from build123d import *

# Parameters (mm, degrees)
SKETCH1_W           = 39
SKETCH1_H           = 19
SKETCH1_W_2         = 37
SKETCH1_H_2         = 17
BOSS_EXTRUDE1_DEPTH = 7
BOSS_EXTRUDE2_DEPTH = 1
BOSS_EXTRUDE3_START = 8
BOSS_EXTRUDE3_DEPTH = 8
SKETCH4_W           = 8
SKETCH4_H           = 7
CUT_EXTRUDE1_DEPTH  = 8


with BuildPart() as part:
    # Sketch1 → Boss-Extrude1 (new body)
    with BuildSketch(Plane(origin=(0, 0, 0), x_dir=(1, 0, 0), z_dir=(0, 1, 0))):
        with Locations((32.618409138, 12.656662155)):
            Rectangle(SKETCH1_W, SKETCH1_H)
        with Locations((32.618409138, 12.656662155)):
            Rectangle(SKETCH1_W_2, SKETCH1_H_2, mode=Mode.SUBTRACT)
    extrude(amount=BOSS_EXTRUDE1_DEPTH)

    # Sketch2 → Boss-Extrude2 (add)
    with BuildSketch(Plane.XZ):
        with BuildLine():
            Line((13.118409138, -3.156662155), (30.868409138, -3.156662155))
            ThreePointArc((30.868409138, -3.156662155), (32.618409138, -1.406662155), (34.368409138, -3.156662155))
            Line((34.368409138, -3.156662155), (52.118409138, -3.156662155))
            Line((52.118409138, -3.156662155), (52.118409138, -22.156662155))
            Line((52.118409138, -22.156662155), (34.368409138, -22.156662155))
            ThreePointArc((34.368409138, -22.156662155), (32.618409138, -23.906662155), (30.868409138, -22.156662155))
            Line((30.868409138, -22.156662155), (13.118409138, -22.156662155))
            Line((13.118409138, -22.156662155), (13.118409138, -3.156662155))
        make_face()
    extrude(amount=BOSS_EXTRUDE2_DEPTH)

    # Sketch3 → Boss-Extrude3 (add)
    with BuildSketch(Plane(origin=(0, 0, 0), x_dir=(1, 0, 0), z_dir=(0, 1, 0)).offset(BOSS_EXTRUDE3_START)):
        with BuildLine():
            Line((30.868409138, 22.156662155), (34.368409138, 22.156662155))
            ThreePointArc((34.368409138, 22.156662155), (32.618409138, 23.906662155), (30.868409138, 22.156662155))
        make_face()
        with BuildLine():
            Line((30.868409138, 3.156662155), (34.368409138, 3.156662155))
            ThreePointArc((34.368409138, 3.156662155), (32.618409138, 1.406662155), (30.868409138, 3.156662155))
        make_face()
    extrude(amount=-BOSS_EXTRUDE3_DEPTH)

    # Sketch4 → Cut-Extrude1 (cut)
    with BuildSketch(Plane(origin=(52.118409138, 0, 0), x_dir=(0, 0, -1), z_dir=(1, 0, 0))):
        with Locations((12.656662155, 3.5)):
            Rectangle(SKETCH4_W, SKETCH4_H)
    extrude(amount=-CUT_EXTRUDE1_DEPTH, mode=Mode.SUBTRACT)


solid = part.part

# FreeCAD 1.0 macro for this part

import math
import FreeCAD as App
import Part
import Sketcher

V = App.Vector


def add_polygon(sketch, points):
    """Adds a closed chain of lines whose ends are joined by coincident constraints."""
    first, n = sketch.GeometryCount, len(points)
    for a, b in zip(points, points[1:] + points[:1]):
        sketch.addGeometry(Part.LineSegment(App.Vector(*a, 0), App.Vector(*b, 0)), False)
    for i in range(n):
        sketch.addConstraint(Sketcher.Constraint("Coincident", first + i, 2, first + (i + 1) % n, 1))

doc = App.newDocument("Part")
body = doc.addObject("PartDesign::Body", "Body")

sketch1 = body.newObject("Sketcher::SketchObject", "Sketch")
sketch1.AttachmentSupport = (doc.getObject("XZ_Plane"), [""])
sketch1.MapMode = "FlatFace"
add_polygon(sketch1, [(13, -22), (13, -3), (52, -3), (52, -22)])
add_polygon(sketch1, [(51, -4), (14, -4), (14, -21), (51, -21)])
sketch1.addConstraint([
    Sketcher.Constraint("Vertical", 0),
    Sketcher.Constraint("Horizontal", 1),
    Sketcher.Constraint("Vertical", 2),
    Sketcher.Constraint("Horizontal", 3),
    Sketcher.Constraint("Horizontal", 4),
    Sketcher.Constraint("Vertical", 5),
    Sketcher.Constraint("Horizontal", 6),
    Sketcher.Constraint("Vertical", 7),
    Sketcher.Constraint("DistanceX", 1, 1, 1, 2, 39.0),
    Sketcher.Constraint("DistanceX", 4, 2, 4, 1, 37.0),
    Sketcher.Constraint("DistanceY", 0, 1, 0, 2, 19.0),
    Sketcher.Constraint("DistanceY", 5, 2, 5, 1, 17.0),
    Sketcher.Constraint("DistanceX", 0, 2, 4, 2, 1.0),
    Sketcher.Constraint("DistanceY", 4, 2, 0, 2, 1.0),
    Sketcher.Constraint("DistanceX", -1, 1, 0, 2, 13.118409),
    Sketcher.Constraint("DistanceY", 0, 2, -1, 1, 3.156662),
])
pad1 = body.newObject("PartDesign::Pad", "Pad")
pad1.Profile = sketch1
pad1.Length = 7
pad1.Reversed = True

sketch2 = body.newObject("Sketcher::SketchObject", "Sketch001")
sketch2.AttachmentSupport = (doc.getObject("XZ_Plane"), [""])
sketch2.MapMode = "FlatFace"
sketch2.addGeometry([
    Part.LineSegment(V(30.9, -3.2, 0), V(13.1, -3.2, 0)),
    Part.LineSegment(V(13.1, -3.2, 0), V(13.1, -22.2, 0)),
    Part.LineSegment(V(13.1, -22.2, 0), V(30.9, -22.2, 0)),
    Part.ArcOfCircle(Part.Circle(V(32.6, -22.2, 0), V(0, 0, 1), 1.8), math.radians(180), math.radians(360)),
    Part.LineSegment(V(34.4, -22.2, 0), V(52.1, -22.2, 0)),
    Part.LineSegment(V(52.1, -22.2, 0), V(52.1, -3.2, 0)),
    Part.LineSegment(V(52.1, -3.2, 0), V(34.4, -3.2, 0)),
    Part.ArcOfCircle(Part.Circle(V(32.6, -3.2, 0), V(0, 0, 1), 1.8), math.radians(0), math.radians(180)),
], False)
sketch2.addConstraint([
    Sketcher.Constraint("Coincident", 0, 2, 1, 1),
    Sketcher.Constraint("Coincident", 1, 2, 2, 1),
    Sketcher.Constraint("Coincident", 2, 2, 3, 1),
    Sketcher.Constraint("Coincident", 3, 2, 4, 1),
    Sketcher.Constraint("Coincident", 4, 2, 5, 1),
    Sketcher.Constraint("Coincident", 5, 2, 6, 1),
    Sketcher.Constraint("Coincident", 6, 2, 7, 1),
    Sketcher.Constraint("Coincident", 7, 2, 0, 1),
    Sketcher.Constraint("Horizontal", 0),
    Sketcher.Constraint("Vertical", 1),
    Sketcher.Constraint("Horizontal", 2),
    Sketcher.Constraint("Horizontal", 4),
    Sketcher.Constraint("Vertical", 5),
    Sketcher.Constraint("Horizontal", 6),
    Sketcher.Constraint("Equal", 3, 7),
    Sketcher.Constraint("Horizontal", 7, 3, 0, 2),
    Sketcher.Constraint("Horizontal", 3, 3, 1, 2),
    Sketcher.Constraint("Horizontal", 2, 2, 3, 2),
    Sketcher.Constraint("Horizontal", 0, 2, 5, 2),
    Sketcher.Constraint("Vertical", 3, 3, 7, 3),
    Sketcher.Constraint("Equal", 2, 4),
    Sketcher.Constraint("DistanceY", 1, 2, 1, 1, 19.0),
    Sketcher.Constraint("Radius", 3, 1.75),
    Sketcher.Constraint("DistanceX", 1, 2, 4, 2, 39.0),
    Sketcher.Constraint("DistanceX", -1, 1, 3, 3, 32.618409),
    Sketcher.Constraint("DistanceY", 3, 3, -1, 1, 22.156662),
])
pad2 = body.newObject("PartDesign::Pad", "Pad001")
pad2.Profile = sketch2
pad2.Length = 1

sketch3 = body.newObject("Sketcher::SketchObject", "Sketch002")
sketch3.AttachmentSupport = (doc.getObject("XZ_Plane"), [""])
sketch3.MapMode = "FlatFace"
sketch3.AttachmentOffset = App.Placement(V(0, 0, -8), App.Rotation())
sketch3.addGeometry([
    Part.LineSegment(V(30.9, -22.2, 0), V(34.4, -22.2, 0)),
    Part.ArcOfCircle(Part.Circle(V(32.6, -22.2, 0), V(0, 0, 1), 1.8), math.radians(180), math.radians(360)),
    Part.LineSegment(V(34.4, -3.2, 0), V(30.9, -3.2, 0)),
    Part.ArcOfCircle(Part.Circle(V(32.6, -3.2, 0), V(0, 0, 1), 1.8), math.radians(0), math.radians(180)),
], False)
sketch3.addConstraint([
    Sketcher.Constraint("Coincident", 0, 1, 1, 1),
    Sketcher.Constraint("Coincident", 1, 2, 0, 2),
    Sketcher.Constraint("Coincident", 2, 1, 3, 1),
    Sketcher.Constraint("Coincident", 3, 2, 2, 2),
    Sketcher.Constraint("Horizontal", 0),
    Sketcher.Constraint("Horizontal", 2),
    Sketcher.Constraint("Equal", 1, 3),
    Sketcher.Constraint("Horizontal", 1, 3, 0, 1),
    Sketcher.Constraint("Horizontal", 3, 3, 2, 1),
    Sketcher.Constraint("Vertical", 1, 3, 3, 3),
    Sketcher.Constraint("Radius", 1, 1.75),
    Sketcher.Constraint("DistanceY", 1, 3, 3, 3, 19.0),
    Sketcher.Constraint("DistanceX", -1, 1, 1, 3, 32.618409),
    Sketcher.Constraint("DistanceY", 1, 3, -1, 1, 22.156662),
])
pad3 = body.newObject("PartDesign::Pad", "Pad002")
pad3.Profile = sketch3
pad3.Length = 8

sketch4 = body.newObject("Sketcher::SketchObject", "Sketch003")
sketch4.AttachmentSupport = (doc.getObject("YZ_Plane"), [""])
sketch4.MapMode = "FlatFace"
sketch4.AttachmentOffset = App.Placement(V(0, 0, 52.118409), App.Rotation())
add_polygon(sketch4, [(7, -9), (0, -9), (0, -17), (7, -17)])
sketch4.addConstraint([
    Sketcher.Constraint("Horizontal", 0),
    Sketcher.Constraint("Vertical", 1),
    Sketcher.Constraint("Horizontal", 2),
    Sketcher.Constraint("Vertical", 3),
    Sketcher.Constraint("PointOnObject", 0, 2, -2),
    Sketcher.Constraint("DistanceX", 0, 2, 0, 1, 7.0),
    Sketcher.Constraint("DistanceY", 1, 2, 1, 1, 8.0),
    Sketcher.Constraint("DistanceY", 0, 2, -1, 1, 8.656662),
])
pocket1 = body.newObject("PartDesign::Pocket", "Pocket")
pocket1.Profile = sketch4
pocket1.Length = 8

doc.recompute()
